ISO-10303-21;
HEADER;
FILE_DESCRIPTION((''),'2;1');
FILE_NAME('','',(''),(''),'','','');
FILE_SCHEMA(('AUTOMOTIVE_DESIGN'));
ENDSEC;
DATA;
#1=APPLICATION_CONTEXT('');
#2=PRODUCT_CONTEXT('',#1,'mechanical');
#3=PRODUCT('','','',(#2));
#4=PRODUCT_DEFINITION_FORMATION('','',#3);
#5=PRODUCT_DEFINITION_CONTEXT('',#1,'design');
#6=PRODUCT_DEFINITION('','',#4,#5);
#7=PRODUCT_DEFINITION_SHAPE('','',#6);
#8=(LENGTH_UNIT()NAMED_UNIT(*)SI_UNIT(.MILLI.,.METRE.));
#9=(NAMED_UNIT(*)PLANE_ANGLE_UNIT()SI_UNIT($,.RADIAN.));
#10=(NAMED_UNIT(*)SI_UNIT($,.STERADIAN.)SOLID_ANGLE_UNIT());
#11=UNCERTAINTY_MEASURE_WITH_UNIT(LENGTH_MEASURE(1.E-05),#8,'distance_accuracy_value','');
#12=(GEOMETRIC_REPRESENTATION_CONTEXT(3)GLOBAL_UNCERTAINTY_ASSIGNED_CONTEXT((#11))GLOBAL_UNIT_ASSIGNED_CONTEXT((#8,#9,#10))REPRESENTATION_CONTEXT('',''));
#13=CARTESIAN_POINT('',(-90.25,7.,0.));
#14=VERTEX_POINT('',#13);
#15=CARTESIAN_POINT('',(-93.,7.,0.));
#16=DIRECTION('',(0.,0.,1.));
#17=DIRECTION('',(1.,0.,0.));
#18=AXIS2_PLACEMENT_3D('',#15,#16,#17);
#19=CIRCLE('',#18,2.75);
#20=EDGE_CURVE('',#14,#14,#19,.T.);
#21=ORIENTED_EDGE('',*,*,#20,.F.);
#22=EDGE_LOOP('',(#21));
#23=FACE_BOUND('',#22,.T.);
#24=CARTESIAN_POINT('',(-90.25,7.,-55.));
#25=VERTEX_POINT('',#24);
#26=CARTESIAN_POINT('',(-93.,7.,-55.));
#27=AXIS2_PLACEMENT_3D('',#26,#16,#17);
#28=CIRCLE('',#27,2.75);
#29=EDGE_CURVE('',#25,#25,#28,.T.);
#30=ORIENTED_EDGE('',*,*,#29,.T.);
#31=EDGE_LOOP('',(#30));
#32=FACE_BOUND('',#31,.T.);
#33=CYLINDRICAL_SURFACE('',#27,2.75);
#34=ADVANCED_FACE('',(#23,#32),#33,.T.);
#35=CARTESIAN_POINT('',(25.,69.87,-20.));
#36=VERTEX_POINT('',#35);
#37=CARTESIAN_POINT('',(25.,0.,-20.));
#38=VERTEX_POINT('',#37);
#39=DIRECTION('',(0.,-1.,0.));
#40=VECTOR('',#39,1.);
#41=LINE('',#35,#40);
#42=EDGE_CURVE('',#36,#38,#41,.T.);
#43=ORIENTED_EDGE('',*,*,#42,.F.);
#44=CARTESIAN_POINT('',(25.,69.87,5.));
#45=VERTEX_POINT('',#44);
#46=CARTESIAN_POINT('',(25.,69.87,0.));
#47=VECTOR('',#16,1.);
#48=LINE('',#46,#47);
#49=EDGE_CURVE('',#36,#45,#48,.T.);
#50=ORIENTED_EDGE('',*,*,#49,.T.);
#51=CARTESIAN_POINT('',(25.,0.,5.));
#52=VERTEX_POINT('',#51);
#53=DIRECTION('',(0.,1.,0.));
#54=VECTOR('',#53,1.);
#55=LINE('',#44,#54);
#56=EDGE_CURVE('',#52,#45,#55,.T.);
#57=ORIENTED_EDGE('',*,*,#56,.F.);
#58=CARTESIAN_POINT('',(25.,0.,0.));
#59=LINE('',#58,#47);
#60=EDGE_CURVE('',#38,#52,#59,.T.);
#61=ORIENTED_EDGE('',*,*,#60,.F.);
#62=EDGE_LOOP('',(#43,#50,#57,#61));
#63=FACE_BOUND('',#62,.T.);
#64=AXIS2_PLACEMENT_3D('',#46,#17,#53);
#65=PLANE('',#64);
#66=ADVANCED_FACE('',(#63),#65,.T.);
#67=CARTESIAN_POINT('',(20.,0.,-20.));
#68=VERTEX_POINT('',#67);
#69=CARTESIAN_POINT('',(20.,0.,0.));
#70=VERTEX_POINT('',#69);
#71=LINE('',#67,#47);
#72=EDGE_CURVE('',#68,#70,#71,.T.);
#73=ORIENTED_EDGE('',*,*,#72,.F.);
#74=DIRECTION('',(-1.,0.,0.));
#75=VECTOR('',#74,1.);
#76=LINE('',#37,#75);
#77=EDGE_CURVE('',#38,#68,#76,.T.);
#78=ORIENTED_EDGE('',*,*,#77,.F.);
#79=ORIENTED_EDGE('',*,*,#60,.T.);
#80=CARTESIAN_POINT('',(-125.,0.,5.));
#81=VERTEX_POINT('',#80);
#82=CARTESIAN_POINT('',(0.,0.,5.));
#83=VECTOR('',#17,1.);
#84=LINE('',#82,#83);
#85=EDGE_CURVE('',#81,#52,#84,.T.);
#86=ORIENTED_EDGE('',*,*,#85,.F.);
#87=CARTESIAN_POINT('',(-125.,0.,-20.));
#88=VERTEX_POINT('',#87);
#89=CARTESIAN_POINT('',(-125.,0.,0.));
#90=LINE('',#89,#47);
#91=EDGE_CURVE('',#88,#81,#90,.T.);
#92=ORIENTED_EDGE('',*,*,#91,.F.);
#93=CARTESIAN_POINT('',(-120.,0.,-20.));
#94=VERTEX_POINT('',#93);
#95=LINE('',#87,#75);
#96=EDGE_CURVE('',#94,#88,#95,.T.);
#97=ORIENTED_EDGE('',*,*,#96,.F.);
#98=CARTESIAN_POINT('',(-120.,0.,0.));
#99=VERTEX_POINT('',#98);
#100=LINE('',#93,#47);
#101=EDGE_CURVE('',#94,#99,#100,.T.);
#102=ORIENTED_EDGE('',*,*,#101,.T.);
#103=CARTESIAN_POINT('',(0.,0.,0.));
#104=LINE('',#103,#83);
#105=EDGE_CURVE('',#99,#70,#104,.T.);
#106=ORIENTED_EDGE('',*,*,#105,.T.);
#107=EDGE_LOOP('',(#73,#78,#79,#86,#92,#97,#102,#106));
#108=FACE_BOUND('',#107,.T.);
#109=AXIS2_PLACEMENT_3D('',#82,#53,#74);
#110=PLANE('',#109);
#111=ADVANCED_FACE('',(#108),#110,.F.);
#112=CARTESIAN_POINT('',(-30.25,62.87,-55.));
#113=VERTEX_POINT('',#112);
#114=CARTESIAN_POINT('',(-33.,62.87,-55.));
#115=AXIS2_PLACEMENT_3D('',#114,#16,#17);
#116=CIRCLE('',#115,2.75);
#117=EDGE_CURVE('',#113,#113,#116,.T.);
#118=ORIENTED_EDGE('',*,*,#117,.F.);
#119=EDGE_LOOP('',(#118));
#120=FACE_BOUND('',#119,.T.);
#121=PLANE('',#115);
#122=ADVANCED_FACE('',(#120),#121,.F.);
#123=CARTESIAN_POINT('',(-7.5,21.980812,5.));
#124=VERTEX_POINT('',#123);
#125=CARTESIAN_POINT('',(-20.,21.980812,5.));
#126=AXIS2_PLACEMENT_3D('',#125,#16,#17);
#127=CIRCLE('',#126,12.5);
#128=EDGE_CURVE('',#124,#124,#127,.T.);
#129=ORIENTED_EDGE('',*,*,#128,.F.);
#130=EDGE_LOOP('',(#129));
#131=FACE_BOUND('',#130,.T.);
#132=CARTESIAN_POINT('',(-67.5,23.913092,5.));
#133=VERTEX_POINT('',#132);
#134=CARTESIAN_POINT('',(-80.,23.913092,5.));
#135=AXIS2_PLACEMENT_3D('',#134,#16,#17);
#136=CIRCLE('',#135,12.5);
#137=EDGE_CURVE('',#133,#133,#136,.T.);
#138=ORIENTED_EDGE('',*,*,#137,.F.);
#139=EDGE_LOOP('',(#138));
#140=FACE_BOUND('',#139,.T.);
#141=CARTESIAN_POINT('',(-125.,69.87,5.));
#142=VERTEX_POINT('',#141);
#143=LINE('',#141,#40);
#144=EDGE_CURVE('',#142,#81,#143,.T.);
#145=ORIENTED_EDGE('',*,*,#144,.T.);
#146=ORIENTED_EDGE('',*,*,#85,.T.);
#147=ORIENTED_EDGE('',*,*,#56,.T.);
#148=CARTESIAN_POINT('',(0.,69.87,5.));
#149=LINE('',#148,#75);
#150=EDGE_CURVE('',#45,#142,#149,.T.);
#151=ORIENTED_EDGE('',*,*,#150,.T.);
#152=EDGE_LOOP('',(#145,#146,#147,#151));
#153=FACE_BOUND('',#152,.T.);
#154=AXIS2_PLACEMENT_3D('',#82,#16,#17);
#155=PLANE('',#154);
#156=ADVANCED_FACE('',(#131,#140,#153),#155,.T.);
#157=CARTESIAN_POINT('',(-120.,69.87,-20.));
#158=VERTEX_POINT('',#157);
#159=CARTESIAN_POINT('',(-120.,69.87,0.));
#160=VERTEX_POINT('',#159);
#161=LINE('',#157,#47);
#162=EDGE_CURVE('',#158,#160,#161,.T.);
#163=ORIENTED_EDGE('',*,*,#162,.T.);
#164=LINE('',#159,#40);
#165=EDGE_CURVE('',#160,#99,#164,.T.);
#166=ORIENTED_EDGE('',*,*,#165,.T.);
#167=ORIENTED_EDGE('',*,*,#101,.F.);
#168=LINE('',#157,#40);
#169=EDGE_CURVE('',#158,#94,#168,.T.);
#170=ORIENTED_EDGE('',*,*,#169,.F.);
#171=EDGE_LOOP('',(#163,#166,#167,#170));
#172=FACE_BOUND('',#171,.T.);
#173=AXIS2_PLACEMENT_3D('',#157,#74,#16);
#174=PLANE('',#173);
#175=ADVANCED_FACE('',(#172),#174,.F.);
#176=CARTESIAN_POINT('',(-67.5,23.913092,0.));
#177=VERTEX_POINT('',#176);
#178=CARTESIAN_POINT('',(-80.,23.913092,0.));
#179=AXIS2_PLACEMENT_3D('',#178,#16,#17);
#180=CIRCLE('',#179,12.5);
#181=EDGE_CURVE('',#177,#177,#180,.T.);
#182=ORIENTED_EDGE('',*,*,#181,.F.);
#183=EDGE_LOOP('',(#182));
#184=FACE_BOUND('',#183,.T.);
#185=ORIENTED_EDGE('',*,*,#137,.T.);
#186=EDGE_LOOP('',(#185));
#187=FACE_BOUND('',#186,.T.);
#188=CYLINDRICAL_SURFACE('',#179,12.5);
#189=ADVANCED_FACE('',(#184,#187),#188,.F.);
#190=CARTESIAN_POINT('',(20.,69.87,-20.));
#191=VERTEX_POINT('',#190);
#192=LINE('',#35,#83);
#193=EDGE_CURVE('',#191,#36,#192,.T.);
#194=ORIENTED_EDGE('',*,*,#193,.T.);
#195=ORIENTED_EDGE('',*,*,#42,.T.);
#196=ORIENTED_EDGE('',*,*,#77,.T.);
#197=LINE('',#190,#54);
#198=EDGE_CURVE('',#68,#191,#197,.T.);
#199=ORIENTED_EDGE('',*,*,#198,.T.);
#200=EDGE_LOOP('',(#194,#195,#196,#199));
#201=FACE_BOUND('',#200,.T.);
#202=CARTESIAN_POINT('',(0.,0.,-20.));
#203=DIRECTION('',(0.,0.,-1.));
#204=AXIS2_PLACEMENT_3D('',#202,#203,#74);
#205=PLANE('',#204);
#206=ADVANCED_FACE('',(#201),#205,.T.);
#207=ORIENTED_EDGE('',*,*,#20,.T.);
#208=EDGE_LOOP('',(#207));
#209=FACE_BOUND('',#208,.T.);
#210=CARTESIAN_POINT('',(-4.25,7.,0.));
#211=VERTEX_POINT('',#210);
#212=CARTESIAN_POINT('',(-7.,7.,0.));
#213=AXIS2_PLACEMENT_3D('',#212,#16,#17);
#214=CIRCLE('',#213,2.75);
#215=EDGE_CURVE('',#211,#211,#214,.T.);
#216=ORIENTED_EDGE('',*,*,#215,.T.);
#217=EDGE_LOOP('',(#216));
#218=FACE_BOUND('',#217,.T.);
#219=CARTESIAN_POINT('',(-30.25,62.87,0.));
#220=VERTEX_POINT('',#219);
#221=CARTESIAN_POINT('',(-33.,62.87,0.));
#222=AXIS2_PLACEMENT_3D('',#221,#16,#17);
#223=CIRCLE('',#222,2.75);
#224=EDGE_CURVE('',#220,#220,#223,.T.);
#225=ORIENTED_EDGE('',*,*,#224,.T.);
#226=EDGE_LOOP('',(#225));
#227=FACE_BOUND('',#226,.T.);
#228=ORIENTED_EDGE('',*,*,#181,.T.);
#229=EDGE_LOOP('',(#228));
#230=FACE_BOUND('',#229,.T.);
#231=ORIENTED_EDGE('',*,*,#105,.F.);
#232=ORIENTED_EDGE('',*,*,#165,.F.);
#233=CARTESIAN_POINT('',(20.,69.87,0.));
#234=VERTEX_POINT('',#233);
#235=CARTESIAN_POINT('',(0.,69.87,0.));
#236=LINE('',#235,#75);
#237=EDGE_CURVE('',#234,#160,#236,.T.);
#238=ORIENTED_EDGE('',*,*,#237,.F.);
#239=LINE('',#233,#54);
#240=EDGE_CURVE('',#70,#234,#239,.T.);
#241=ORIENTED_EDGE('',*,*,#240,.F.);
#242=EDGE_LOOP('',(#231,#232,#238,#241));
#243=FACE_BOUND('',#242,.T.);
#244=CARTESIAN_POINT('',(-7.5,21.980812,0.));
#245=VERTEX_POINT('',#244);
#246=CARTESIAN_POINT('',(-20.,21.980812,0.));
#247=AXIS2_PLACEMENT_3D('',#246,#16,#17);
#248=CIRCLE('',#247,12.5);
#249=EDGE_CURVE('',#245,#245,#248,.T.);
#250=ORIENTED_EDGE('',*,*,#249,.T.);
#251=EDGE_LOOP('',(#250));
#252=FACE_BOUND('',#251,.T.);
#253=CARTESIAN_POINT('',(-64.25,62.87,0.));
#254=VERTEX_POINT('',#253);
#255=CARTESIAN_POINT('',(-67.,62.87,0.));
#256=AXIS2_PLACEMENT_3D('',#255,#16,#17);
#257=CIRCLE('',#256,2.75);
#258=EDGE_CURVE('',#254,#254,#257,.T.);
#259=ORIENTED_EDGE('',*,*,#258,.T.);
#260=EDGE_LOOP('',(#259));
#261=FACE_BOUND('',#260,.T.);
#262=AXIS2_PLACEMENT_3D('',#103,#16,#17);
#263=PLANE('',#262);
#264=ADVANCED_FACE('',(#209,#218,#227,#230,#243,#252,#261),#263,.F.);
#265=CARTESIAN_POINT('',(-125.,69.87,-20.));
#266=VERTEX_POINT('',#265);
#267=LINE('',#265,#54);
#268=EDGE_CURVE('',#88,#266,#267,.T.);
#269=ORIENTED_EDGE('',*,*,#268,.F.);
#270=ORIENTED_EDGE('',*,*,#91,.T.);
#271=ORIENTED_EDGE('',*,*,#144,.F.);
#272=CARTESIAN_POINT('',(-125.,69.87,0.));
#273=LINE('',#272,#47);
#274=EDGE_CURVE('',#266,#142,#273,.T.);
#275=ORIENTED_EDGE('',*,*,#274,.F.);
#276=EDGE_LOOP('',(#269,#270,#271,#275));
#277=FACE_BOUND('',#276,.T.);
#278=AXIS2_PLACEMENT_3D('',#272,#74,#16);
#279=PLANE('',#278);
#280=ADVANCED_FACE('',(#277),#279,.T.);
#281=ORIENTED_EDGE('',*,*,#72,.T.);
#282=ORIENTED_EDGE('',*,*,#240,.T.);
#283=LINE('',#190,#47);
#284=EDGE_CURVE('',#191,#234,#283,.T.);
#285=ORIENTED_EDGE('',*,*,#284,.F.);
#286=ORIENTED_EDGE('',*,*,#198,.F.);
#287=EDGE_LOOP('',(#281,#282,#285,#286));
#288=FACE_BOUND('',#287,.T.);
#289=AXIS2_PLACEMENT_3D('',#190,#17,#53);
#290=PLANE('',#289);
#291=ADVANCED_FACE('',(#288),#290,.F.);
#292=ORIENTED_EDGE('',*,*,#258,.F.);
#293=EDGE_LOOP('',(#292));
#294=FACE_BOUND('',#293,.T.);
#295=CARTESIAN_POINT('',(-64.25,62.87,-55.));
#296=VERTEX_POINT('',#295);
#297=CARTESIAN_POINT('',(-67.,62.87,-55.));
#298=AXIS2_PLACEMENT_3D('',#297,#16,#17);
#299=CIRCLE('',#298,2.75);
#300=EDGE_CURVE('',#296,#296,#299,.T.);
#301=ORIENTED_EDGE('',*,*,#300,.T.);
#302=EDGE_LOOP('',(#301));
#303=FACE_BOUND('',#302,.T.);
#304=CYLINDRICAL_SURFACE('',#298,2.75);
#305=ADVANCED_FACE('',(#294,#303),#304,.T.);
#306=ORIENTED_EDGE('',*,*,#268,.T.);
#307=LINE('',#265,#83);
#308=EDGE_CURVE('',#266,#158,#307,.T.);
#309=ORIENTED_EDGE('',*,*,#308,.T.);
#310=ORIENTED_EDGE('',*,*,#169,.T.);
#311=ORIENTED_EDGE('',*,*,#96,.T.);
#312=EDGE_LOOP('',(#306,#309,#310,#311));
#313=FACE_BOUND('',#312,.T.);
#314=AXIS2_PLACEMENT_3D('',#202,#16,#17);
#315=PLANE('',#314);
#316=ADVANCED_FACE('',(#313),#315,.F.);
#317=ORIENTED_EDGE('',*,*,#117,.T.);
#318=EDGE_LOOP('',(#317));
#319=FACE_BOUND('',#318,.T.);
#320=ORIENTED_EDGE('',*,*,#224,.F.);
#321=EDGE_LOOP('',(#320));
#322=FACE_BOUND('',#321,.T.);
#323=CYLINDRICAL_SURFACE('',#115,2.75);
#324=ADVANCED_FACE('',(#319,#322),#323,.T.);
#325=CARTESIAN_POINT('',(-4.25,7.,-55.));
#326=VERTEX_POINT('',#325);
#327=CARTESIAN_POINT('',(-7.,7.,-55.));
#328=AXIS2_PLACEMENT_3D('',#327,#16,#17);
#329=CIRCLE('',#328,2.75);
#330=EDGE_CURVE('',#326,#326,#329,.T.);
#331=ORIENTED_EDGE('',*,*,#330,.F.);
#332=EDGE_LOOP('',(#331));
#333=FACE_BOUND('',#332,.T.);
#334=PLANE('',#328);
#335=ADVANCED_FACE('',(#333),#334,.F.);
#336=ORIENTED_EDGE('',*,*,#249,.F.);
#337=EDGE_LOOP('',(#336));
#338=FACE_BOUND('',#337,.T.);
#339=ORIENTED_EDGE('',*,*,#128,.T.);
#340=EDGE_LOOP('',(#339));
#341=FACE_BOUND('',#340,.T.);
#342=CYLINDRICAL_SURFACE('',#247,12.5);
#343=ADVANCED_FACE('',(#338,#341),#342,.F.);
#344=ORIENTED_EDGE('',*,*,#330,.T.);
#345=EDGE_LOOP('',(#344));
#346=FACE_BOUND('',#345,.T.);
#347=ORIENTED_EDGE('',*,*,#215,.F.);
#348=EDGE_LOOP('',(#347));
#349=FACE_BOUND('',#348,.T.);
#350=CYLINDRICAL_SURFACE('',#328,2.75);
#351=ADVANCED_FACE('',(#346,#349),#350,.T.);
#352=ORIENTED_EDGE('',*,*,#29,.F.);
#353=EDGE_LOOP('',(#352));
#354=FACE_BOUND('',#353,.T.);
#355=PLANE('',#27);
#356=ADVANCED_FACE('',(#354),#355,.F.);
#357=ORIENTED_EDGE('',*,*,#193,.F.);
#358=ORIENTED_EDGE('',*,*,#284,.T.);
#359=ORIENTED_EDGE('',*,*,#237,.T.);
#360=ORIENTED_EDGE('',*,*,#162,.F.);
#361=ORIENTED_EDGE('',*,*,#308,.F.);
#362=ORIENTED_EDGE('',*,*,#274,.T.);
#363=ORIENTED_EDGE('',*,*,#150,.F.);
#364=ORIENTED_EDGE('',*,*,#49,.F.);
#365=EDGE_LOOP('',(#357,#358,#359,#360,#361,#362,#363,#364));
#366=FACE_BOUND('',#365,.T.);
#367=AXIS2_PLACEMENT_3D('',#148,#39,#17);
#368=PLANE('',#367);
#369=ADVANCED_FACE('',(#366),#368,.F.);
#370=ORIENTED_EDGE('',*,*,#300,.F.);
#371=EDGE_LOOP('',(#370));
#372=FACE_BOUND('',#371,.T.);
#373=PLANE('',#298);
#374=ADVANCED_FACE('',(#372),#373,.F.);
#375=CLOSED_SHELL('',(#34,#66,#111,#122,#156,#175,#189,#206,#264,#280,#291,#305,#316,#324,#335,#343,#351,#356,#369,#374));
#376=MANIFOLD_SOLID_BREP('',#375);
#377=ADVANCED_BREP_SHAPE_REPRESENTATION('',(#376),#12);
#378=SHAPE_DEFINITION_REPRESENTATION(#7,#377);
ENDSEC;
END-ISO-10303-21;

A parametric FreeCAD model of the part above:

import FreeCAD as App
import Part
import Sketcher

V = App.Vector
Q = App.Units.Quantity


def add_polygon(sketch, points):
    """Adds a closed chain of lines whose ends are joined by coincident constraints."""
    first, n = sketch.GeometryCount, len(points)
    for a, b in zip(points, points[1:] + points[:1]):
        sketch.addGeometry(Part.LineSegment(App.Vector(*a, 0), App.Vector(*b, 0)), False)
    for i in range(n):
        sketch.addConstraint(Sketcher.Constraint("Coincident", first + i, 2, first + (i + 1) % n, 1))

doc = App.newDocument("Part")
body = doc.addObject("PartDesign::Body", "Body")

sketch1 = body.newObject("Sketcher::SketchObject", "Sketch")
sketch1.AttachmentSupport = (doc.getObject("XY_Plane"), [""])
sketch1.MapMode = "FlatFace"
add_polygon(sketch1, [(-100, 70), (-100, 0), (0, 0), (0, 70)])
sketch1.addConstraint([
    Sketcher.Constraint("Vertical", 0),
    Sketcher.Constraint("Horizontal", 1),
    Sketcher.Constraint("Vertical", 2),
    Sketcher.Constraint("Horizontal", 3),
    Sketcher.Constraint("Coincident", 1, 2, -1, 1),
    Sketcher.Constraint("DistanceX", 1, 1, 1, 2, Q("100 mm")),
    Sketcher.Constraint("DistanceY", 0, 2, 0, 1, Q("69.87 mm")),
])
pad1 = body.newObject("PartDesign::Pad", "Pad")
pad1.Profile = sketch1
pad1.Length = 5

sketch2 = body.newObject("Sketcher::SketchObject", "Sketch001")
sketch2.AttachmentSupport = (doc.getObject("XY_Plane"), [""])
sketch2.MapMode = "FlatFace"
sketch2.AttachmentOffset = App.Placement(V(0, 0, 5), App.Rotation())
sketch2.addGeometry([
    Part.Circle(V(-80, 24, 0), V(0, 0, 1), 12),
    Part.Circle(V(-20, 22, 0), V(0, 0, 1), 12),
], False)
sketch2.addConstraint([
    Sketcher.Constraint("Equal", 0, 1),
    Sketcher.Constraint("Diameter", 0, Q("25 mm")),
    Sketcher.Constraint("DistanceX", 0, 3, -1, 1, Q("80 mm")),
    Sketcher.Constraint("DistanceX", 1, 3, -1, 1, Q("20 mm")),
    Sketcher.Constraint("DistanceY", 1, 3, 0, 3, Q("1.93228 mm")),
    Sketcher.Constraint("DistanceY", -1, 1, 0, 3, Q("23.913092 mm")),
])
pocket1 = body.newObject("PartDesign::Pocket", "Pocket")
pocket1.Profile = sketch2
pocket1.Length = 5

sketch3 = body.newObject("Sketcher::SketchObject", "Sketch002")
sketch3.AttachmentSupport = (doc.getObject("XY_Plane"), [""])
sketch3.MapMode = "FlatFace"
sketch3.AttachmentOffset = App.Placement(V(0, 0, 5), App.Rotation())
add_polygon(sketch3, [(-125, 70), (-125, 0), (-100, 0), (-100, 70)])
add_polygon(sketch3, [(0, 70), (0, 0), (25, 0), (25, 70)])
sketch3.addConstraint([
    Sketcher.Constraint("Vertical", 0),
    Sketcher.Constraint("Horizontal", 1),
    Sketcher.Constraint("Vertical", 2),
    Sketcher.Constraint("Horizontal", 3),
    Sketcher.Constraint("Vertical", 4),
    Sketcher.Constraint("Horizontal", 5),
    Sketcher.Constraint("Vertical", 6),
    Sketcher.Constraint("Horizontal", 7),
    Sketcher.Constraint("Coincident", 4, 2, -1, 1),
    Sketcher.Constraint("PointOnObject", 0, 2, -1),
    Sketcher.Constraint("Horizontal", 3, 2, 6, 2),
    Sketcher.Constraint("Equal", 3, 5),
    Sketcher.Constraint("DistanceX", 1, 1, 1, 2, Q("25 mm")),
    Sketcher.Constraint("DistanceX", 0, 2, -1, 1, Q("125 mm")),
    Sketcher.Constraint("DistanceY", 0, 2, 0, 1, Q("69.87 mm")),
])
pad2 = body.newObject("PartDesign::Pad", "Pad001")
pad2.Profile = sketch3
pad2.Length = 5
pad2.Reversed = True

sketch4 = body.newObject("Sketcher::SketchObject", "Sketch003")
sketch4.AttachmentSupport = (doc.getObject("XY_Plane"), [""])
sketch4.MapMode = "FlatFace"
add_polygon(sketch4, [(-120, 70), (-120, 0), (-125, 0), (-125, 70)])
add_polygon(sketch4, [(25, 70), (25, 0), (20, 0), (20, 70)])
sketch4.addConstraint([
    Sketcher.Constraint("Vertical", 0),
    Sketcher.Constraint("Horizontal", 1),
    Sketcher.Constraint("Vertical", 2),
    Sketcher.Constraint("Horizontal", 3),
    Sketcher.Constraint("Vertical", 4),
    Sketcher.Constraint("Horizontal", 5),
    Sketcher.Constraint("Vertical", 6),
    Sketcher.Constraint("Horizontal", 7),
    Sketcher.Constraint("PointOnObject", 0, 2, -1),
    Sketcher.Constraint("PointOnObject", 4, 2, -1),
    Sketcher.Constraint("Horizontal", 3, 2, 6, 2),
    Sketcher.Constraint("Equal", 3, 5),
    Sketcher.Constraint("DistanceX", 1, 2, 1, 1, Q("5 mm")),
    Sketcher.Constraint("DistanceX", 0, 2, -1, 1, Q("120 mm")),
    Sketcher.Constraint("DistanceX", -1, 1, 4, 2, Q("25 mm")),
    Sketcher.Constraint("DistanceY", 0, 2, 0, 1, Q("69.87 mm")),
])
pad3 = body.newObject("PartDesign::Pad", "Pad002")
pad3.Profile = sketch4
pad3.Length = 20
pad3.Reversed = True

sketch5 = body.newObject("Sketcher::SketchObject", "Sketch004")
sketch5.AttachmentSupport = (doc.getObject("XY_Plane"), [""])
sketch5.MapMode = "FlatFace"
sketch5.AttachmentOffset = App.Placement(V(0, 0, 5), App.Rotation())
sketch5.addGeometry(Part.Circle(V(-67, 62.9, 0), V(0, 0, 1), 2.8), False)
sketch5.addConstraint([
    Sketcher.Constraint("Diameter", 0, Q("5.5 mm")),
    Sketcher.Constraint("DistanceX", 0, 3, -1, 1, Q("67 mm")),
    Sketcher.Constraint("DistanceY", -1, 1, 0, 3, Q("62.87 mm")),
])
pad4 = body.newObject("PartDesign::Pad", "Pad003")
pad4.Profile = sketch5
pad4.Length = 60
pad4.Reversed = True

sketch6 = body.newObject("Sketcher::SketchObject", "Sketch005")
sketch6.AttachmentSupport = (doc.getObject("XY_Plane"), [""])
sketch6.MapMode = "FlatFace"
sketch6.AttachmentOffset = App.Placement(V(0, 0, 5), App.Rotation())
sketch6.addGeometry(Part.Circle(V(-33, 62.9, 0), V(0, 0, 1), 2.8), False)
sketch6.addConstraint([
    Sketcher.Constraint("Diameter", 0, Q("5.5 mm")),
    Sketcher.Constraint("DistanceX", 0, 3, -1, 1, Q("33 mm")),
    Sketcher.Constraint("DistanceY", -1, 1, 0, 3, Q("62.87 mm")),
])
pad5 = body.newObject("PartDesign::Pad", "Pad004")
pad5.Profile = sketch6
pad5.Length = 60
pad5.Reversed = True

sketch7 = body.newObject("Sketcher::SketchObject", "Sketch006")
sketch7.AttachmentSupport = (doc.getObject("XY_Plane"), [""])
sketch7.MapMode = "FlatFace"
sketch7.AttachmentOffset = App.Placement(V(0, 0, 5), App.Rotation())
sketch7.addGeometry(Part.Circle(V(-93, 7, 0), V(0, 0, 1), 2.8), False)
sketch7.addConstraint([
    Sketcher.Constraint("Diameter", 0, Q("5.5 mm")),
    Sketcher.Constraint("DistanceX", 0, 3, -1, 1, Q("93 mm")),
    Sketcher.Constraint("DistanceY", -1, 1, 0, 3, Q("7 mm")),
])
pad6 = body.newObject("PartDesign::Pad", "Pad005")
pad6.Profile = sketch7
pad6.Length = 60
pad6.Reversed = True

sketch8 = body.newObject("Sketcher::SketchObject", "Sketch007")
sketch8.AttachmentSupport = (doc.getObject("XY_Plane"), [""])
sketch8.MapMode = "FlatFace"
sketch8.AttachmentOffset = App.Placement(V(0, 0, 5), App.Rotation())
sketch8.addGeometry(Part.Circle(V(-7, 7, 0), V(0, 0, 1), 2.8), False)
sketch8.addConstraint([
    Sketcher.Constraint("Diameter", 0, Q("5.5 mm")),
    Sketcher.Constraint("DistanceX", 0, 3, -1, 1, Q("7 mm")),
    Sketcher.Constraint("DistanceY", -1, 1, 0, 3, Q("7 mm")),
])
pad7 = body.newObject("PartDesign::Pad", "Pad006")
pad7.Profile = sketch8
pad7.Length = 60
pad7.Reversed = True

doc.recompute()
